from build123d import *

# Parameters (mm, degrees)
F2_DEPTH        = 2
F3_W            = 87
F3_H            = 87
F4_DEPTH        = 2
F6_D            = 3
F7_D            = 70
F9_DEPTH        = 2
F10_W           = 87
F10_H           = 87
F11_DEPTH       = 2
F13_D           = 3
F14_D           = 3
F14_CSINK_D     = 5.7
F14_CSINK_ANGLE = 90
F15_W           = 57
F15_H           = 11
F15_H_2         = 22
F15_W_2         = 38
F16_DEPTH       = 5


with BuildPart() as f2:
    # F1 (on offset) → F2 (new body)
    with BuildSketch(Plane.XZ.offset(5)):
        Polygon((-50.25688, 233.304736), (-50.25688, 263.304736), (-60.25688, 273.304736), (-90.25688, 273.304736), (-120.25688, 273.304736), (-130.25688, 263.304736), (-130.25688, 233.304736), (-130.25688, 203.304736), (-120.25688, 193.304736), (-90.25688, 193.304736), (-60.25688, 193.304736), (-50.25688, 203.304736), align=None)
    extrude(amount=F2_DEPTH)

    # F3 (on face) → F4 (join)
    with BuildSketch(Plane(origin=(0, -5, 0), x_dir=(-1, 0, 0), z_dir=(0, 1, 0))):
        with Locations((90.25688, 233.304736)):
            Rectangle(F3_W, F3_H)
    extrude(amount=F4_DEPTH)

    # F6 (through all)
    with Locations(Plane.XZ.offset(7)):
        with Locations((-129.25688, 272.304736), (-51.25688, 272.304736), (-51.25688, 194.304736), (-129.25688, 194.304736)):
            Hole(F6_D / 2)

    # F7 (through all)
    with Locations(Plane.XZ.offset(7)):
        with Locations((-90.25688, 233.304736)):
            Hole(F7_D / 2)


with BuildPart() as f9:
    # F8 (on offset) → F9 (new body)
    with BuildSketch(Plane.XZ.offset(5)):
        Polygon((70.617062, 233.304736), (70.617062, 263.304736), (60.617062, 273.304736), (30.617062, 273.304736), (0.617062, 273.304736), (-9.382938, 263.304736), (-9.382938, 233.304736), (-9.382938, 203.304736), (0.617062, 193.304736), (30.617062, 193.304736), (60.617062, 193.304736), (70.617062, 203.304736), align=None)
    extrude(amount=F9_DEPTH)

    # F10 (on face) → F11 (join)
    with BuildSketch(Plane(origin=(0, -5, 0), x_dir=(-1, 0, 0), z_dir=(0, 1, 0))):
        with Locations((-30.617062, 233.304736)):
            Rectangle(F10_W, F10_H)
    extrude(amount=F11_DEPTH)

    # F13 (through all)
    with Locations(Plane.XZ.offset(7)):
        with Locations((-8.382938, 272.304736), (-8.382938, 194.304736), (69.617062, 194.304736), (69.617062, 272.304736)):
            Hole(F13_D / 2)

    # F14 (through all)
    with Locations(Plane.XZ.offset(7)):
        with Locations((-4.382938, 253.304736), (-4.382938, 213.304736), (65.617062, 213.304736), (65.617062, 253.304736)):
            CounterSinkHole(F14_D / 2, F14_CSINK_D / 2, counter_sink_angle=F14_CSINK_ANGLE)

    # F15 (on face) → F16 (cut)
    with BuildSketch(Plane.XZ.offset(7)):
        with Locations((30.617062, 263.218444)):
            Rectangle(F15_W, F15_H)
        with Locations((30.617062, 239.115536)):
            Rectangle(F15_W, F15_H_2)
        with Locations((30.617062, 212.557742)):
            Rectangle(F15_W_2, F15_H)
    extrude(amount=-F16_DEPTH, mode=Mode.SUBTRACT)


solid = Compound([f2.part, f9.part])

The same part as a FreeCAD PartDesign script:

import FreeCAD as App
import Part
import Sketcher
from FreeCAD import Vector
Q = App.Units.Quantity

doc = App.newDocument("Part")
params = doc.addObject("Spreadsheet::Sheet", "Params")
for row, (alias, value) in enumerate([
    ("sketch1_width", "60 mm"),
    ("pad1_length", "2 mm"),
    ("sketch2_width", "87 mm"),
    ("pad2_length", "2 mm"),
    ("sketch3_diameter", "3 mm"),
    ("hole_diameter", "3 mm"),
    ("sketch4_diameter", "70 mm"),
    ("hole2_diameter", "70 mm"),
    ("sketch5_width", "60 mm"),
    ("pad3_length", "2 mm"),
    ("sketch6_width", "87 mm"),
    ("pad4_length", "2 mm"),
    ("sketch7_diameter", "3 mm"),
    ("hole3_diameter", "3 mm"),
    ("sketch8_diameter", "3 mm"),
    ("hole4_diameter", "3 mm"),
    ("hole4_csink_diameter", "5.7 mm"),
    ("sketch9_width", "57 mm"),
    ("sketch9_width2", "38 mm"),
    ("sketch9_height", "11 mm"),
    ("sketch9_height2", "22 mm"),
    ("pocket1_length", "5 mm"),
], start=1):
    params.set(f"A{row}", alias)
    params.set(f"B{row}", "=" + value)
    params.setAlias(f"B{row}", alias)

body = doc.addObject("PartDesign::Body", "Body")

# Sketch on XZ plane
sketch1 = body.newObject("Sketcher::SketchObject", "Sketch")
sketch1.AttachmentSupport = (doc.getObject("XZ_Plane"), [""])
sketch1.MapMode = "FlatFace"
sketch1.AttachmentOffset = App.Placement(Vector(0, 0, 5), App.Rotation())
sketch1.addGeometry([
    Part.LineSegment(Vector(-50, 263, 0), Vector(-60, 273, 0)),  # 0
    Part.LineSegment(Vector(-60, 273, 0), Vector(-120, 273, 0)),  # 1
    Part.LineSegment(Vector(-120, 273, 0), Vector(-130, 263, 0)),  # 2
    Part.LineSegment(Vector(-130, 263, 0), Vector(-130, 203, 0)),  # 3
    Part.LineSegment(Vector(-130, 203, 0), Vector(-120, 193, 0)),  # 4
    Part.LineSegment(Vector(-120, 193, 0), Vector(-60, 193, 0)),  # 5
    Part.LineSegment(Vector(-60, 193, 0), Vector(-50, 203, 0)),  # 6
    Part.LineSegment(Vector(-50, 203, 0), Vector(-50, 263, 0)),  # 7
], False)
sketch1.addConstraint([
    Sketcher.Constraint("Coincident", 0, 2, 1, 1),
    Sketcher.Constraint("Coincident", 1, 2, 2, 1),
    Sketcher.Constraint("Coincident", 2, 2, 3, 1),
    Sketcher.Constraint("Coincident", 3, 2, 4, 1),
    Sketcher.Constraint("Coincident", 4, 2, 5, 1),
    Sketcher.Constraint("Coincident", 5, 2, 6, 1),
    Sketcher.Constraint("Coincident", 6, 2, 7, 1),
    Sketcher.Constraint("Coincident", 7, 2, 0, 1),
    Sketcher.Constraint("Horizontal", 1),
    Sketcher.Constraint("Vertical", 3),
    Sketcher.Constraint("Horizontal", 5),
    Sketcher.Constraint("Vertical", 7),
    Sketcher.Constraint("Perpendicular", 0, 2),
    Sketcher.Constraint("Perpendicular", 2, 4),
    Sketcher.Constraint("Perpendicular", 4, 6),
    Sketcher.Constraint("Horizontal", 3, 2, 6, 2),
    Sketcher.Constraint("Horizontal", 2, 2, 7, 2),
    Sketcher.Constraint("Vertical", 1, 2, 4, 2),
    Sketcher.Constraint("Vertical", 0, 2, 5, 2),
    Sketcher.Constraint("Equal", 5, 3),
    Sketcher.Constraint("DistanceX", 1, 2, 1, 1, Q("60 mm")),
    Sketcher.Constraint("DistanceX", 2, 2, 1, 2, Q("10 mm")),
    Sketcher.Constraint("DistanceX", 0, 2, -1, 1, Q("60.25688 mm")),
    Sketcher.Constraint("DistanceY", -1, 1, 0, 2, Q("273.304736 mm")),
])
sketch1.setExpression("Constraints[20]", "Params.sketch1_width")
pad1 = body.newObject("PartDesign::Pad", "Pad")
pad1.Profile = sketch1
pad1.setExpression("Length", "Params.pad1_length")

# Sketch on XZ plane
sketch2 = body.newObject("Sketcher::SketchObject", "Sketch001")
sketch2.AttachmentSupport = (doc.getObject("XZ_Plane"), [""])
sketch2.MapMode = "FlatFace"
sketch2.AttachmentOffset = App.Placement(Vector(0, 0, 5), App.Rotation())
sketch2.addGeometry([
    Part.LineSegment(Vector(-47, 277, 0), Vector(-47, 190, 0)),
    Part.LineSegment(Vector(-47, 190, 0), Vector(-134, 190, 0)),
    Part.LineSegment(Vector(-134, 190, 0), Vector(-134, 277, 0)),
    Part.LineSegment(Vector(-134, 277, 0), Vector(-47, 277, 0)),
], False)
sketch2.addConstraint([
    Sketcher.Constraint("Coincident", 0, 2, 1, 1),
    Sketcher.Constraint("Coincident", 1, 2, 2, 1),
    Sketcher.Constraint("Coincident", 2, 2, 3, 1),
    Sketcher.Constraint("Coincident", 3, 2, 0, 1),
    Sketcher.Constraint("Vertical", 0),
    Sketcher.Constraint("Horizontal", 1),
    Sketcher.Constraint("Vertical", 2),
    Sketcher.Constraint("Horizontal", 3),
    Sketcher.Constraint("Equal", 3, 0),
    Sketcher.Constraint("DistanceX", 1, 2, 1, 1, Q("87 mm")),
    Sketcher.Constraint("DistanceX", 0, 2, -1, 1, Q("46.75688 mm")),
    Sketcher.Constraint("DistanceY", -1, 1, 0, 2, Q("189.804736 mm")),
])
sketch2.setExpression("Constraints[9]", "Params.sketch2_width")
pad2 = body.newObject("PartDesign::Pad", "Pad001")
pad2.Profile = sketch2
pad2.setExpression("Length", "Params.pad2_length")
pad2.Reversed = True

# Sketch on XZ plane
sketch3 = body.newObject("Sketcher::SketchObject", "Sketch002")
sketch3.AttachmentSupport = (doc.getObject("XZ_Plane"), [""])
sketch3.MapMode = "FlatFace"
sketch3.AttachmentOffset = App.Placement(Vector(0, 0, 7), App.Rotation())
sketch3.addGeometry([
    Part.Circle(Vector(-129.3, 272.3, 0), Vector(0, 0, 1), 1.5),
    Part.Circle(Vector(-51.3, 272.3, 0), Vector(0, 0, 1), 1.5),
    Part.Circle(Vector(-51.3, 194.3, 0), Vector(0, 0, 1), 1.5),
    Part.Circle(Vector(-129.3, 194.3, 0), Vector(0, 0, 1), 1.5),
], False)
sketch3.addConstraint([
    Sketcher.Constraint("Equal", 0, 1),
    Sketcher.Constraint("Equal", 1, 2),
    Sketcher.Constraint("Equal", 2, 3),
    Sketcher.Constraint("Horizontal", 0, 3, 1, 3),
    Sketcher.Constraint("Horizontal", 2, 3, 3, 3),
    Sketcher.Constraint("Vertical", 1, 3, 2, 3),
    Sketcher.Constraint("Vertical", 0, 3, 3, 3),
    Sketcher.Constraint("Diameter", 0, Q("3 mm")),
    Sketcher.Constraint("DistanceX", 0, 3, 1, 3, Q("78 mm")),
    Sketcher.Constraint("DistanceY", 2, 3, 1, 3, Q("78 mm")),
    Sketcher.Constraint("DistanceX", 0, 3, -1, 1, Q("129.25688 mm")),
    Sketcher.Constraint("DistanceY", -1, 1, 0, 3, Q("272.304736 mm")),
])
sketch3.setExpression("Constraints[7]", "Params.sketch3_diameter")
doc.recompute()
hole = body.newObject("PartDesign::Hole", "Hole")
hole.Profile = sketch3
hole.ThreadType = "None"
hole.setExpression("Diameter", "Params.hole_diameter")
hole.DepthType = "ThroughAll"

# Sketch on XZ plane
sketch4 = body.newObject("Sketcher::SketchObject", "Sketch003")
sketch4.AttachmentSupport = (doc.getObject("XZ_Plane"), [""])
sketch4.MapMode = "FlatFace"
sketch4.AttachmentOffset = App.Placement(Vector(0, 0, 7), App.Rotation())
sketch4.addGeometry(Part.Circle(Vector(-90, 233, 0), Vector(0, 0, 1), 35), False)
sketch4.addConstraint([
    Sketcher.Constraint("Diameter", 0, Q("70 mm")),
    Sketcher.Constraint("DistanceX", 0, 3, -1, 1, Q("90.25688 mm")),
    Sketcher.Constraint("DistanceY", -1, 1, 0, 3, Q("233.304736 mm")),
])
sketch4.setExpression("Constraints[0]", "Params.sketch4_diameter")
doc.recompute()
hole2 = body.newObject("PartDesign::Hole", "Hole001")
hole2.Profile = sketch4
hole2.ThreadType = "None"
hole2.setExpression("Diameter", "Params.hole2_diameter")
hole2.DepthType = "ThroughAll"
body2 = doc.addObject("PartDesign::Body", "Body001")

# Sketch on XZ plane
sketch5 = body2.newObject("Sketcher::SketchObject", "Sketch004")
sketch5.AttachmentSupport = (doc.getObject("XZ_Plane001"), [""])
sketch5.MapMode = "FlatFace"
sketch5.AttachmentOffset = App.Placement(Vector(0, 0, 5), App.Rotation())
sketch5.addGeometry([
    Part.LineSegment(Vector(71, 263, 0), Vector(61, 273, 0)),  # 0
    Part.LineSegment(Vector(61, 273, 0), Vector(1, 273, 0)),  # 1
    Part.LineSegment(Vector(1, 273, 0), Vector(-9, 263, 0)),  # 2
    Part.LineSegment(Vector(-9, 263, 0), Vector(-9, 203, 0)),  # 3
    Part.LineSegment(Vector(-9, 203, 0), Vector(1, 193, 0)),  # 4
    Part.LineSegment(Vector(1, 193, 0), Vector(61, 193, 0)),  # 5
    Part.LineSegment(Vector(61, 193, 0), Vector(71, 203, 0)),  # 6
    Part.LineSegment(Vector(71, 203, 0), Vector(71, 263, 0)),  # 7
], False)
sketch5.addConstraint([
    Sketcher.Constraint("Coincident", 0, 2, 1, 1),
    Sketcher.Constraint("Coincident", 1, 2, 2, 1),
    Sketcher.Constraint("Coincident", 2, 2, 3, 1),
    Sketcher.Constraint("Coincident", 3, 2, 4, 1),
    Sketcher.Constraint("Coincident", 4, 2, 5, 1),
    Sketcher.Constraint("Coincident", 5, 2, 6, 1),
    Sketcher.Constraint("Coincident", 6, 2, 7, 1),
    Sketcher.Constraint("Coincident", 7, 2, 0, 1),
    Sketcher.Constraint("Horizontal", 1),
    Sketcher.Constraint("Vertical", 3),
    Sketcher.Constraint("Horizontal", 5),
    Sketcher.Constraint("Vertical", 7),
    Sketcher.Constraint("Perpendicular", 0, 2),
    Sketcher.Constraint("Perpendicular", 2, 4),
    Sketcher.Constraint("Perpendicular", 4, 6),
    Sketcher.Constraint("Horizontal", 3, 2, 6, 2),
    Sketcher.Constraint("Horizontal", 2, 2, 7, 2),
    Sketcher.Constraint("Vertical", 1, 2, 4, 2),
    Sketcher.Constraint("Vertical", 0, 2, 5, 2),
    Sketcher.Constraint("Equal", 5, 3),
    Sketcher.Constraint("DistanceX", 1, 2, 1, 1, Q("60 mm")),
    Sketcher.Constraint("DistanceX", 2, 2, 1, 2, Q("10 mm")),
    Sketcher.Constraint("DistanceX", -1, 1, 0, 2, Q("60.617062 mm")),
    Sketcher.Constraint("DistanceY", -1, 1, 0, 2, Q("273.304736 mm")),
])
sketch5.setExpression("Constraints[20]", "Params.sketch5_width")
pad3 = body2.newObject("PartDesign::Pad", "Pad002")
pad3.Profile = sketch5
pad3.setExpression("Length", "Params.pad3_length")

# Sketch on XZ plane
sketch6 = body2.newObject("Sketcher::SketchObject", "Sketch005")
sketch6.AttachmentSupport = (doc.getObject("XZ_Plane001"), [""])
sketch6.MapMode = "FlatFace"
sketch6.AttachmentOffset = App.Placement(Vector(0, 0, 5), App.Rotation())
sketch6.addGeometry([
    Part.LineSegment(Vector(74, 277, 0), Vector(74, 190, 0)),
    Part.LineSegment(Vector(74, 190, 0), Vector(-13, 190, 0)),
    Part.LineSegment(Vector(-13, 190, 0), Vector(-13, 277, 0)),
    Part.LineSegment(Vector(-13, 277, 0), Vector(74, 277, 0)),
], False)
sketch6.addConstraint([
    Sketcher.Constraint("Coincident", 0, 2, 1, 1),
    Sketcher.Constraint("Coincident", 1, 2, 2, 1),
    Sketcher.Constraint("Coincident", 2, 2, 3, 1),
    Sketcher.Constraint("Coincident", 3, 2, 0, 1),
    Sketcher.Constraint("Vertical", 0),
    Sketcher.Constraint("Horizontal", 1),
    Sketcher.Constraint("Vertical", 2),
    Sketcher.Constraint("Horizontal", 3),
    Sketcher.Constraint("Equal", 3, 0),
    Sketcher.Constraint("DistanceX", 1, 2, 1, 1, Q("87 mm")),
    Sketcher.Constraint("DistanceX", -1, 1, 0, 2, Q("74.117062 mm")),
    Sketcher.Constraint("DistanceY", -1, 1, 0, 2, Q("189.804736 mm")),
])
sketch6.setExpression("Constraints[9]", "Params.sketch6_width")
pad4 = body2.newObject("PartDesign::Pad", "Pad003")
pad4.Profile = sketch6
pad4.setExpression("Length", "Params.pad4_length")
pad4.Reversed = True

# Sketch on XZ plane
sketch7 = body2.newObject("Sketcher::SketchObject", "Sketch006")
sketch7.AttachmentSupport = (doc.getObject("XZ_Plane001"), [""])
sketch7.MapMode = "FlatFace"
sketch7.AttachmentOffset = App.Placement(Vector(0, 0, 7), App.Rotation())
sketch7.addGeometry([
    Part.Circle(Vector(-8.4, 272.3, 0), Vector(0, 0, 1), 1.5),
    Part.Circle(Vector(-8.4, 194.3, 0), Vector(0, 0, 1), 1.5),
    Part.Circle(Vector(69.6, 194.3, 0), Vector(0, 0, 1), 1.5),
    Part.Circle(Vector(69.6, 272.3, 0), Vector(0, 0, 1), 1.5),
], False)
sketch7.addConstraint([
    Sketcher.Constraint("Equal", 0, 1),
    Sketcher.Constraint("Equal", 1, 2),
    Sketcher.Constraint("Equal", 2, 3),
    Sketcher.Constraint("Horizontal", 1, 3, 2, 3),
    Sketcher.Constraint("Horizontal", 0, 3, 3, 3),
    Sketcher.Constraint("Vertical", 0, 3, 1, 3),
    Sketcher.Constraint("Vertical", 2, 3, 3, 3),
    Sketcher.Constraint("Diameter", 0, Q("3 mm")),
    Sketcher.Constraint("DistanceY", 1, 3, 0, 3, Q("78 mm")),
    Sketcher.Constraint("DistanceX", 1, 3, 2, 3, Q("78 mm")),
    Sketcher.Constraint("DistanceX", 0, 3, -1, 1, Q("8.382938 mm")),
    Sketcher.Constraint("DistanceY", -1, 1, 0, 3, Q("272.304736 mm")),
])
sketch7.setExpression("Constraints[7]", "Params.sketch7_diameter")
doc.recompute()
hole3 = body2.newObject("PartDesign::Hole", "Hole002")
hole3.Profile = sketch7
hole3.ThreadType = "None"
hole3.setExpression("Diameter", "Params.hole3_diameter")
hole3.DepthType = "ThroughAll"

# Sketch on XZ plane
sketch8 = body2.newObject("Sketcher::SketchObject", "Sketch007")
sketch8.AttachmentSupport = (doc.getObject("XZ_Plane001"), [""])
sketch8.MapMode = "FlatFace"
sketch8.AttachmentOffset = App.Placement(Vector(0, 0, 7), App.Rotation())
sketch8.addGeometry([
    Part.Circle(Vector(-4.4, 253.3, 0), Vector(0, 0, 1), 1.5),
    Part.Circle(Vector(-4.4, 213.3, 0), Vector(0, 0, 1), 1.5),
    Part.Circle(Vector(65.6, 213.3, 0), Vector(0, 0, 1), 1.5),
    Part.Circle(Vector(65.6, 253.3, 0), Vector(0, 0, 1), 1.5),
], False)
sketch8.addConstraint([
    Sketcher.Constraint("Equal", 0, 1),
    Sketcher.Constraint("Equal", 1, 2),
    Sketcher.Constraint("Equal", 2, 3),
    Sketcher.Constraint("Horizontal", 1, 3, 2, 3),
    Sketcher.Constraint("Horizontal", 0, 3, 3, 3),
    Sketcher.Constraint("Vertical", 0, 3, 1, 3),
    Sketcher.Constraint("Vertical", 2, 3, 3, 3),
    Sketcher.Constraint("Diameter", 0, Q("3 mm")),
    Sketcher.Constraint("DistanceY", 1, 3, 0, 3, Q("40 mm")),
    Sketcher.Constraint("DistanceX", 1, 3, 2, 3, Q("70 mm")),
    Sketcher.Constraint("DistanceX", 0, 3, -1, 1, Q("4.382938 mm")),
    Sketcher.Constraint("DistanceY", -1, 1, 0, 3, Q("253.304736 mm")),
])
sketch8.setExpression("Constraints[7]", "Params.sketch8_diameter")
doc.recompute()
hole4 = body2.newObject("PartDesign::Hole", "Hole003")
hole4.Profile = sketch8
hole4.ThreadType = "None"
hole4.setExpression("Diameter", "Params.hole4_diameter")
hole4.DepthType = "ThroughAll"
hole4.HoleCutType = "Countersink"
hole4.setExpression("HoleCutDiameter", "Params.hole4_csink_diameter")
hole4.HoleCutCountersinkAngle = 90

# Sketch on XZ plane
sketch9 = body2.newObject("Sketcher::SketchObject", "Sketch008")
sketch9.AttachmentSupport = (doc.getObject("XZ_Plane001"), [""])
sketch9.MapMode = "FlatFace"
sketch9.AttachmentOffset = App.Placement(Vector(0, 0, 7), App.Rotation())
sketch9.addGeometry([
    Part.LineSegment(Vector(2, 269, 0), Vector(2, 258, 0)),  # 0
    Part.LineSegment(Vector(2, 258, 0), Vector(59, 258, 0)),  # 1
    Part.LineSegment(Vector(59, 258, 0), Vector(59, 269, 0)),  # 2
    Part.LineSegment(Vector(59, 269, 0), Vector(2, 269, 0)),  # 3
    Part.LineSegment(Vector(2, 250, 0), Vector(2, 228, 0)),  # 4
    Part.LineSegment(Vector(2, 228, 0), Vector(59, 228, 0)),  # 5
    Part.LineSegment(Vector(59, 228, 0), Vector(59, 250, 0)),  # 6
    Part.LineSegment(Vector(59, 250, 0), Vector(2, 250, 0)),  # 7
    Part.LineSegment(Vector(12, 218, 0), Vector(12, 207, 0)),  # 8
    Part.LineSegment(Vector(12, 207, 0), Vector(50, 207, 0)),  # 9
    Part.LineSegment(Vector(50, 207, 0), Vector(50, 218, 0)),  # 10
    Part.LineSegment(Vector(50, 218, 0), Vector(12, 218, 0)),  # 11
], False)
sketch9.addConstraint([
    Sketcher.Constraint("Coincident", 0, 2, 1, 1),
    Sketcher.Constraint("Coincident", 1, 2, 2, 1),
    Sketcher.Constraint("Coincident", 2, 2, 3, 1),
    Sketcher.Constraint("Coincident", 3, 2, 0, 1),
    Sketcher.Constraint("Coincident", 4, 2, 5, 1),
    Sketcher.Constraint("Coincident", 5, 2, 6, 1),
    Sketcher.Constraint("Coincident", 6, 2, 7, 1),
    Sketcher.Constraint("Coincident", 7, 2, 4, 1),
    Sketcher.Constraint("Coincident", 8, 2, 9, 1),
    Sketcher.Constraint("Coincident", 9, 2, 10, 1),
    Sketcher.Constraint("Coincident", 10, 2, 11, 1),
    Sketcher.Constraint("Coincident", 11, 2, 8, 1),
    Sketcher.Constraint("Vertical", 0),
    Sketcher.Constraint("Horizontal", 1),
    Sketcher.Constraint("Vertical", 2),
    Sketcher.Constraint("Horizontal", 3),
    Sketcher.Constraint("Vertical", 4),
    Sketcher.Constraint("Horizontal", 5),
    Sketcher.Constraint("Vertical", 6),
    Sketcher.Constraint("Horizontal", 7),
    Sketcher.Constraint("Vertical", 8),
    Sketcher.Constraint("Horizontal", 9),
    Sketcher.Constraint("Vertical", 10),
    Sketcher.Constraint("Horizontal", 11),
    Sketcher.Constraint("Vertical", 3, 2, 4, 2),
    Sketcher.Constraint("Vertical", 2, 2, 5, 2),
    Sketcher.Constraint("Equal", 2, 8),
    Sketcher.Constraint("DistanceX", 1, 1, 1, 2, Q("57 mm")),
    Sketcher.Constraint("DistanceX", 9, 1, 9, 2, Q("38 mm")),
    Sketcher.Constraint("DistanceY", 0, 2, 0, 1, Q("11 mm")),
    Sketcher.Constraint("DistanceY", 4, 2, 4, 1, Q("22 mm")),
    Sketcher.Constraint("DistanceX", 4, 2, 8, 2, Q("9.5 mm")),
    Sketcher.Constraint("DistanceY", 8, 2, 0, 2, Q("50.660702 mm")),
    Sketcher.Constraint("DistanceX", -1, 1, 1, 2, Q("59.117062 mm")),
    Sketcher.Constraint("DistanceY", -1, 1, 8, 2, Q("207.057742 mm")),
    Sketcher.Constraint("DistanceY", -1, 1, 4, 2, Q("228.115536 mm")),
])
sketch9.setExpression("Constraints[27]", "Params.sketch9_width")
sketch9.setExpression("Constraints[28]", "Params.sketch9_width2")
sketch9.setExpression("Constraints[29]", "Params.sketch9_height")
sketch9.setExpression("Constraints[30]", "Params.sketch9_height2")
pocket1 = body2.newObject("PartDesign::Pocket", "Pocket")
pocket1.Profile = sketch9
pocket1.setExpression("Length", "Params.pocket1_length")

doc.recompute()
